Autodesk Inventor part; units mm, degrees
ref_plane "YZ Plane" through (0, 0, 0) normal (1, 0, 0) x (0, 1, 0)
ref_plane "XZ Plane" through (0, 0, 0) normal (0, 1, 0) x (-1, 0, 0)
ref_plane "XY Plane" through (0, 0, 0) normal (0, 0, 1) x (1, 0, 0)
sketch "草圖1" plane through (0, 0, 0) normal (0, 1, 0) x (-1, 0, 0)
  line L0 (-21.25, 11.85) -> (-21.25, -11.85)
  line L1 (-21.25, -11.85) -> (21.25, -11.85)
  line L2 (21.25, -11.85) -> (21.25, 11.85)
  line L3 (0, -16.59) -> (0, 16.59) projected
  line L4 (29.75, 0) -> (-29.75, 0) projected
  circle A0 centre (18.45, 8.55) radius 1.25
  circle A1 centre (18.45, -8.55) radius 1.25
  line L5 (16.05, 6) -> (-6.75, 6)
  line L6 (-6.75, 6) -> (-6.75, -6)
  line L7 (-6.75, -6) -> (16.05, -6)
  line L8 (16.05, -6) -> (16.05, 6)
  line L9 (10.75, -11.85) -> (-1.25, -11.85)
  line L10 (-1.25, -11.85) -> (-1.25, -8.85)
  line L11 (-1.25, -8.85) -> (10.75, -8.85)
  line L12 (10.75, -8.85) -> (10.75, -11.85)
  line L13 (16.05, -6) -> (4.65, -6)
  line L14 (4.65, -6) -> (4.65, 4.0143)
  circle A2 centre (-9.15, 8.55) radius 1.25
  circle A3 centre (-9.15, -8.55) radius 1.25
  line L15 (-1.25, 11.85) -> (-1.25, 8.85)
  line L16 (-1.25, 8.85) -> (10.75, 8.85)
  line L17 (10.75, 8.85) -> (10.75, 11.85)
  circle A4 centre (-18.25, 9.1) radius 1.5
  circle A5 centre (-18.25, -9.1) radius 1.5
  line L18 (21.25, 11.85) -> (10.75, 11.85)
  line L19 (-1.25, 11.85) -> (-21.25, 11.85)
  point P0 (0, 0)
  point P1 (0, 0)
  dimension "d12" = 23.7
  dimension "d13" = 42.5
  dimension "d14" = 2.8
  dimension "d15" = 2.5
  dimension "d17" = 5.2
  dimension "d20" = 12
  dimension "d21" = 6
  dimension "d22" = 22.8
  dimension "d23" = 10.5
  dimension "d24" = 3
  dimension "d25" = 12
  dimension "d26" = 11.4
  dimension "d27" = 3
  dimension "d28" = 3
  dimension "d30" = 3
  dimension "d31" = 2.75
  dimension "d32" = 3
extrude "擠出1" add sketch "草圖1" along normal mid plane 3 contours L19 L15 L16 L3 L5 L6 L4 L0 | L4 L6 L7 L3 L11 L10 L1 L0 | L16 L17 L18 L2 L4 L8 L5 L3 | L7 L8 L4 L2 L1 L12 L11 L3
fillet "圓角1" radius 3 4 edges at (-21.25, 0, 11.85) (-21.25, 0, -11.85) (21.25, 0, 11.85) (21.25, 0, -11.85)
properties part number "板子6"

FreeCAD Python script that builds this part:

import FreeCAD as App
import Part
import Sketcher

V = App.Vector
Q = App.Units.Quantity


def edges_at(feature, points):
    """Names of the edges that pass closest to the given points."""
    edges = feature.Shape.Edges
    near = lambda p: min(range(len(edges)), key=lambda i: edges[i].distToShape(Part.Vertex(*p))[0])
    return sorted({f"Edge{near(p) + 1}" for p in points})

doc = App.newDocument("Part")
params = doc.addObject("Spreadsheet::Sheet", "Params")
for row, (alias, value) in enumerate([
    ("sketch1_diameter", "3 mm"),
    ("sketch1_diameter2", "2.5 mm"),
    ("sketch1_width", "12 mm"),
    ("sketch1_height", "3 mm"),
    ("sketch1_width2", "10.5 mm"),
    ("pad1_length", "3 mm"),
    ("fillet_radius", "3 mm"),
], start=1):
    params.set(f"A{row}", alias)
    params.set(f"B{row}", "=" + value)
    params.setAlias(f"B{row}", alias)

body = doc.addObject("PartDesign::Body", "Body")

sketch1 = body.newObject("Sketcher::SketchObject", "Sketch")
sketch1.AttachmentSupport = (doc.getObject("XZ_Plane"), [""])
sketch1.MapMode = "FlatFace"
sketch1.addGeometry([
    Part.LineSegment(V(1.2, 11.8, 0), V(21.2, 11.8, 0)),
    Part.LineSegment(V(21.2, 11.8, 0), V(21.2, -11.8, 0)),
    Part.LineSegment(V(21.2, -11.8, 0), V(1.2, -11.8, 0)),
    Part.LineSegment(V(1.2, -11.8, 0), V(1.2, -8.8, 0)),
    Part.LineSegment(V(1.2, -8.8, 0), V(-10.8, -8.8, 0)),
    Part.LineSegment(V(-10.8, -8.8, 0), V(-10.8, -11.8, 0)),
    Part.LineSegment(V(-10.8, -11.8, 0), V(-21.2, -11.8, 0)),
    Part.LineSegment(V(-21.2, -11.8, 0), V(-21.2, 11.8, 0)),
    Part.LineSegment(V(-21.2, 11.8, 0), V(-10.8, 11.8, 0)),
    Part.LineSegment(V(-10.8, 11.8, 0), V(-10.8, 8.8, 0)),
    Part.LineSegment(V(-10.8, 8.8, 0), V(1.2, 8.8, 0)),
    Part.LineSegment(V(1.2, 8.8, 0), V(1.2, 11.8, 0)),
    Part.LineSegment(V(6.8, 6, 0), V(-16.1, 6, 0)),
    Part.LineSegment(V(-16.1, 6, 0), V(-16.1, -6, 0)),
    Part.LineSegment(V(-16.1, -6, 0), V(6.8, -6, 0)),
    Part.LineSegment(V(6.8, -6, 0), V(6.8, 6, 0)),
    Part.Circle(V(18.2, 9.1, 0), V(0, 0, 1), 1.5),
    Part.Circle(V(9.2, 8.6, 0), V(0, 0, 1), 1.2),
    Part.Circle(V(-18.4, 8.6, 0), V(0, 0, 1), 1.2),
    Part.Circle(V(9.2, -8.6, 0), V(0, 0, 1), 1.2),
    Part.Circle(V(18.2, -9.1, 0), V(0, 0, 1), 1.5),
    Part.Circle(V(-18.4, -8.6, 0), V(0, 0, 1), 1.2),
], False)
sketch1.addConstraint([
    Sketcher.Constraint("Coincident", 0, 2, 1, 1),
    Sketcher.Constraint("Coincident", 1, 2, 2, 1),
    Sketcher.Constraint("Coincident", 2, 2, 3, 1),
    Sketcher.Constraint("Coincident", 3, 2, 4, 1),
    Sketcher.Constraint("Coincident", 4, 2, 5, 1),
    Sketcher.Constraint("Coincident", 5, 2, 6, 1),
    Sketcher.Constraint("Coincident", 6, 2, 7, 1),
    Sketcher.Constraint("Coincident", 7, 2, 8, 1),
    Sketcher.Constraint("Coincident", 8, 2, 9, 1),
    Sketcher.Constraint("Coincident", 9, 2, 10, 1),
    Sketcher.Constraint("Coincident", 10, 2, 11, 1),
    Sketcher.Constraint("Coincident", 11, 2, 0, 1),
    Sketcher.Constraint("Coincident", 12, 2, 13, 1),
    Sketcher.Constraint("Coincident", 13, 2, 14, 1),
    Sketcher.Constraint("Coincident", 14, 2, 15, 1),
    Sketcher.Constraint("Coincident", 15, 2, 12, 1),
    Sketcher.Constraint("Horizontal", 0),
    Sketcher.Constraint("Vertical", 1),
    Sketcher.Constraint("Horizontal", 2),
    Sketcher.Constraint("Vertical", 3),
    Sketcher.Constraint("Horizontal", 4),
    Sketcher.Constraint("Vertical", 5),
    Sketcher.Constraint("Horizontal", 6),
    Sketcher.Constraint("Vertical", 7),
    Sketcher.Constraint("Horizontal", 8),
    Sketcher.Constraint("Vertical", 9),
    Sketcher.Constraint("Horizontal", 10),
    Sketcher.Constraint("Vertical", 11),
    Sketcher.Constraint("Horizontal", 12),
    Sketcher.Constraint("Vertical", 13),
    Sketcher.Constraint("Horizontal", 14),
    Sketcher.Constraint("Vertical", 15),
    Sketcher.Constraint("Equal", 17, 18),
    Sketcher.Constraint("Equal", 18, 19),
    Sketcher.Constraint("Equal", 16, 20),
    Sketcher.Constraint("Equal", 19, 21),
    Sketcher.Constraint("Symmetric", 0, 2, 6, 2, -1, 1),
    Sketcher.Constraint("Symmetric", 17, 3, 19, 3, -1),
    Sketcher.Constraint("Symmetric", 16, 3, 20, 3, -1),
    Sketcher.Constraint("Symmetric", 18, 3, 21, 3, -1),
    Sketcher.Constraint("Symmetric", 5, 2, 8, 2, -1),
    Sketcher.Constraint("Symmetric", 3, 2, 10, 2, -1),
    Sketcher.Constraint("Horizontal", 17, 3, 18, 3),
    Sketcher.Constraint("Horizontal", 2, 2, 5, 2),
    Sketcher.Constraint("Equal", 10, 13),
    Sketcher.Constraint("Diameter", 16, Q("3 mm")),
    Sketcher.Constraint("Diameter", 17, Q("2.5 mm")),
    Sketcher.Constraint("DistanceX", 4, 2, 4, 1, Q("12 mm")),
    Sketcher.Constraint("DistanceY", 3, 1, 3, 2, Q("3 mm")),
    Sketcher.Constraint("DistanceX", 6, 2, 6, 1, Q("10.5 mm")),
    Sketcher.Constraint("DistanceX", 12, 2, 12, 1, Q("22.8 mm")),
    Sketcher.Constraint("DistanceY", 1, 2, 1, 1, Q("23.7 mm")),
    Sketcher.Constraint("DistanceY", -1, 1, 12, 2, Q("6 mm")),
    Sketcher.Constraint("DistanceX", 16, 3, 0, 2, Q("3 mm")),
    Sketcher.Constraint("DistanceX", 6, 2, 21, 3, Q("2.8 mm")),
    Sketcher.Constraint("DistanceX", 7, 2, 12, 2, Q("5.2 mm")),
    Sketcher.Constraint("DistanceX", 0, 1, 0, 2, Q("20 mm")),
    Sketcher.Constraint("DistanceY", 16, 3, 0, 2, Q("2.75 mm")),
    Sketcher.Constraint("DistanceX", 17, 3, 16, 3, Q("9.1 mm")),
    Sketcher.Constraint("DistanceY", 19, 3, 17, 3, Q("17.1 mm")),
])
sketch1.setExpression("Constraints[45]", "Params.sketch1_diameter")
sketch1.setExpression("Constraints[46]", "Params.sketch1_diameter2")
sketch1.setExpression("Constraints[47]", "Params.sketch1_width")
sketch1.setExpression("Constraints[48]", "Params.sketch1_height")
sketch1.setExpression("Constraints[49]", "Params.sketch1_width2")
pad1 = body.newObject("PartDesign::Pad", "Pad")
pad1.Profile = sketch1
pad1.setExpression("Length", "Params.pad1_length")
pad1.Midplane = True
doc.recompute()

fillet = body.newObject("PartDesign::Fillet", "Fillet")
fillet.Base = (pad1, edges_at(pad1, [
    (-21.25, 0, 11.85),
    (-21.25, 0, -11.85),
    (21.25, 0, 11.85),
    (21.25, 0, -11.85),
]))
fillet.setExpression("Radius", "Params.fillet_radius")

doc.recompute()
